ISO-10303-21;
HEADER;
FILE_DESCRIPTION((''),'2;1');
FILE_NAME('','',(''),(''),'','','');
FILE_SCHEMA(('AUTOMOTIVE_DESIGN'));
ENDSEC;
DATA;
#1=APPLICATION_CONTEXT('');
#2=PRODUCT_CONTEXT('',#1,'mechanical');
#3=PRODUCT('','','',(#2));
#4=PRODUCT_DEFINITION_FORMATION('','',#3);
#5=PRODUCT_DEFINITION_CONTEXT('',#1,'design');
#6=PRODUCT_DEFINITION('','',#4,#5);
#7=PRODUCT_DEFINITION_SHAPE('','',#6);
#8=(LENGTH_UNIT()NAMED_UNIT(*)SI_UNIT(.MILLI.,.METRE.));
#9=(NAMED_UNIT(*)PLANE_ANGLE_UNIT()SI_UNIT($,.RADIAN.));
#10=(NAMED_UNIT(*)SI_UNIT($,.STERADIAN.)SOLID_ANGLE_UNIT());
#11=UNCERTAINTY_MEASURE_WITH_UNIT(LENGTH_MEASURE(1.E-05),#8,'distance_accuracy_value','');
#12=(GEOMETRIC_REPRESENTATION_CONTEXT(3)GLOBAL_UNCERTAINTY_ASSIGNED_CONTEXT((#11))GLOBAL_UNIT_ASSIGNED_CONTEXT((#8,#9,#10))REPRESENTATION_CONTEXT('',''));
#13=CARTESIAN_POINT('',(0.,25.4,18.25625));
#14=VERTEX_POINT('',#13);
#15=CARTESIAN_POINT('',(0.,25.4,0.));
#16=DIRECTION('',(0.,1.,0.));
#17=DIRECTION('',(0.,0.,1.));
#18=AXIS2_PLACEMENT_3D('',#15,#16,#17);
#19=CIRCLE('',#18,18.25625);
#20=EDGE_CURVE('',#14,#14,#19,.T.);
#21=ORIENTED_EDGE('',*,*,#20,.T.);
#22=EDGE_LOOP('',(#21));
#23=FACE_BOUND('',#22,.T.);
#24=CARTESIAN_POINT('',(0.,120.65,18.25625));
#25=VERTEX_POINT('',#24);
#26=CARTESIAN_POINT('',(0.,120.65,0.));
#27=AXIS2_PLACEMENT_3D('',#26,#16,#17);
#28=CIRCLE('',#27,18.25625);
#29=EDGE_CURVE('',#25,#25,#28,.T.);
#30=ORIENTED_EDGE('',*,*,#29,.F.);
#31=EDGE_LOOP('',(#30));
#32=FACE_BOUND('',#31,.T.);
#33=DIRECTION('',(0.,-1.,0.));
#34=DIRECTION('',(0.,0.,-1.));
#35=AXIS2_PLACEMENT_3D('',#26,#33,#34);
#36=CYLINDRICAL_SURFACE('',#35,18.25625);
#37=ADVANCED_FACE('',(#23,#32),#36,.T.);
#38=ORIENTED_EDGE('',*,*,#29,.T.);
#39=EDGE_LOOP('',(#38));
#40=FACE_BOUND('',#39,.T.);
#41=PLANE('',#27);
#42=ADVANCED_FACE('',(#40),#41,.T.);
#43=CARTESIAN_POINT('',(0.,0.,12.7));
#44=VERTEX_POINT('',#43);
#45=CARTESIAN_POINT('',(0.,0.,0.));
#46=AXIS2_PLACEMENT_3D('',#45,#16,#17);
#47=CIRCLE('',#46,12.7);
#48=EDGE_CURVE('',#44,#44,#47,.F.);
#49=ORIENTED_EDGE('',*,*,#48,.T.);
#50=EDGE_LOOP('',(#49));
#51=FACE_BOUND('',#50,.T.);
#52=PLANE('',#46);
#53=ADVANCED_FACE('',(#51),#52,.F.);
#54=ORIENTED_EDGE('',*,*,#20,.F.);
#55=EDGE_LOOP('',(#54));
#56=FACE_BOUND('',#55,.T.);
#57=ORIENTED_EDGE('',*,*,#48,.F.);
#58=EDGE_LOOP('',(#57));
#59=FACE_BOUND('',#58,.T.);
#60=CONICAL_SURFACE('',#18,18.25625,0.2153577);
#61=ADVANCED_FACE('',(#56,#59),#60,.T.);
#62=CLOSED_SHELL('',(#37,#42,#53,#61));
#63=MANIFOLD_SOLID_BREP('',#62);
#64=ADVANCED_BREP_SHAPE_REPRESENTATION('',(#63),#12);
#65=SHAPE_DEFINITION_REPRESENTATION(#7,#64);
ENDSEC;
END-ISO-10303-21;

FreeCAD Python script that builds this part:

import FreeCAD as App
import Part
import Sketcher
from FreeCAD import Vector
Q = App.Units.Quantity


def edges_at(feature, points):
    """Names of the edges that pass closest to the given points."""
    edges = feature.Shape.Edges
    near = lambda p: min(range(len(edges)), key=lambda i: edges[i].distToShape(Part.Vertex(*p))[0])
    return sorted({f"Edge{near(p) + 1}" for p in points})

doc = App.newDocument("Part")
body = doc.addObject("PartDesign::Body", "Body")

# Sketch on XZ plane
sketch1 = doc.addObject("Sketcher::SketchObject", "Sketch")
body.addObject(sketch1)
sketch1.AttachmentSupport = (doc.XZ_Plane, [""])
sketch1.MapMode = "FlatFace"
sketch1.addGeometry(Part.Circle(Vector(0, 0, 0), Vector(0, 0, 1), 18), False)
sketch1.addConstraint([
    Sketcher.Constraint("Coincident", 0, 3, -1, 1),
    Sketcher.Constraint("Diameter", 0, Q("1.4375 in")),
])
pad1 = doc.addObject("PartDesign::Pad", "Pad")
body.addObject(pad1)
pad1.Profile = sketch1
pad1.Length = Q("4.75 in")
pad1.Reversed = True
doc.recompute()

chamfer = doc.addObject("PartDesign::Chamfer", "Chamfer")
body.addObject(chamfer)
chamfer.Base = (pad1, edges_at(pad1, [(-18.256, 0, 0)]))
chamfer.ChamferType = "Two distances"
chamfer.Size = Q("0.21875 in")
chamfer.Size2 = Q("1 in")
chamfer.FlipDirection = True

doc.recompute()
